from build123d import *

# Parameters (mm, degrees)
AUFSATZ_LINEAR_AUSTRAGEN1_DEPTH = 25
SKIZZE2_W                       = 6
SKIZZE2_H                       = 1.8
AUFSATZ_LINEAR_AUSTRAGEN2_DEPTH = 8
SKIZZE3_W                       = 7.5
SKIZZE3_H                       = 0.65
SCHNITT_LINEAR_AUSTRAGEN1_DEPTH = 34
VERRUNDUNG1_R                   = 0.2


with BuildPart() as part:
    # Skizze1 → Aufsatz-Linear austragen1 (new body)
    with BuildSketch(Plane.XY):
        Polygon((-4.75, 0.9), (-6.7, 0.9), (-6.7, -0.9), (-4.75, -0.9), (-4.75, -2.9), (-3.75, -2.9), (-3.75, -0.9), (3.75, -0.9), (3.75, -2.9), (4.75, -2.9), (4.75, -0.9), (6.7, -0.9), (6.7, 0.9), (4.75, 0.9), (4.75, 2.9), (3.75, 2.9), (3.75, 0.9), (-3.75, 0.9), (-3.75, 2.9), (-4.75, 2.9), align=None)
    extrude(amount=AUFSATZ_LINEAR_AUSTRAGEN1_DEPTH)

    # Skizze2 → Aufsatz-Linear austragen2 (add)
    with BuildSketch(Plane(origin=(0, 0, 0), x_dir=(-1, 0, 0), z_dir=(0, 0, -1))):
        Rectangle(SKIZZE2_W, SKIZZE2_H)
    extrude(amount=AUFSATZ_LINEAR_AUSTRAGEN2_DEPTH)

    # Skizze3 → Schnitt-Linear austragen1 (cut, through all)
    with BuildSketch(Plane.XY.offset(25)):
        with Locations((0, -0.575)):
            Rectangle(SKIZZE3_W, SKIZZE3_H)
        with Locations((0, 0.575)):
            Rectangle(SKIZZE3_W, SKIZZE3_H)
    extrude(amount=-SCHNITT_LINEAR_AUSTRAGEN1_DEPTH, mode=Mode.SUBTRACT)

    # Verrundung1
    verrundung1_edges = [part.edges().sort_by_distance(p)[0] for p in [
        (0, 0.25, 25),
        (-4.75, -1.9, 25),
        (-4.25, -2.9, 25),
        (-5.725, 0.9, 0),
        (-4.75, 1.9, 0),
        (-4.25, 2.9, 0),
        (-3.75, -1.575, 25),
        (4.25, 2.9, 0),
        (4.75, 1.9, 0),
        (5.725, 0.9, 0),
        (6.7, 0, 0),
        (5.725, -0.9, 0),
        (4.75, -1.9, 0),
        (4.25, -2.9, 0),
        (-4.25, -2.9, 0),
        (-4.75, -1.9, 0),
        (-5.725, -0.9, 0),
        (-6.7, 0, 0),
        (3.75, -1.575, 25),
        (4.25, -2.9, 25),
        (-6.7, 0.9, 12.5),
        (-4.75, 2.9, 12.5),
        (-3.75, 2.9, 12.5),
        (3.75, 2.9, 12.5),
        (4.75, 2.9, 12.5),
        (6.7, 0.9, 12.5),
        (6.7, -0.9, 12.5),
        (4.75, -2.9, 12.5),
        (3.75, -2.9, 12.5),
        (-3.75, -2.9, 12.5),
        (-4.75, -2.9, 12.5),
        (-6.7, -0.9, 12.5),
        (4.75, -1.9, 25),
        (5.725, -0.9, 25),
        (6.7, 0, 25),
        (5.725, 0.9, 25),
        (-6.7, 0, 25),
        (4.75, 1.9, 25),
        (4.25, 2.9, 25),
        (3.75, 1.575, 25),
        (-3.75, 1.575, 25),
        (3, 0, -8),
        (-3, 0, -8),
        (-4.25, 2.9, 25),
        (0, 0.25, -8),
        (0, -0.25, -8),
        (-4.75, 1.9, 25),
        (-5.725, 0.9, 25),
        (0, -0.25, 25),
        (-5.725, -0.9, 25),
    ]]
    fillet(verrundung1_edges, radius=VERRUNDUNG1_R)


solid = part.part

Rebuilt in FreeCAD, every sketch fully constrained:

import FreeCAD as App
import Part
import Sketcher

V = App.Vector


def edges_at(feature, points):
    """Names of the edges that pass closest to the given points."""
    edges = feature.Shape.Edges
    near = lambda p: min(range(len(edges)), key=lambda i: edges[i].distToShape(Part.Vertex(*p))[0])
    return sorted({f"Edge{near(p) + 1}" for p in points})


def add_polygon(sketch, points):
    """Adds a closed chain of lines whose ends are joined by coincident constraints."""
    first, n = sketch.GeometryCount, len(points)
    for a, b in zip(points, points[1:] + points[:1]):
        sketch.addGeometry(Part.LineSegment(App.Vector(*a, 0), App.Vector(*b, 0)), False)
    for i in range(n):
        sketch.addConstraint(Sketcher.Constraint("Coincident", first + i, 2, first + (i + 1) % n, 1))

doc = App.newDocument("Part")
body = doc.addObject("PartDesign::Body", "Body")

# Sketch on XY plane
sketch1 = doc.addObject("Sketcher::SketchObject", "Sketch")
body.addObject(sketch1)
sketch1.AttachmentSupport = (doc.XY_Plane, [""])
sketch1.MapMode = "FlatFace"
add_polygon(sketch1, [(-4.75, 0.9), (-6.7, 0.9), (-6.7, -0.9), (-4.75, -0.9), (-4.75, -2.9), (-3.75, -2.9), (-3.75, -0.9), (3.75, -0.9), (3.75, -2.9), (4.75, -2.9), (4.75, -0.9), (6.7, -0.9), (6.7, 0.9), (4.75, 0.9), (4.75, 2.9), (3.75, 2.9), (3.75, 0.9), (-3.75, 0.9), (-3.75, 2.9), (-4.75, 2.9)])  # lines 0-19
sketch1.addConstraint([
    Sketcher.Constraint("Horizontal", 0),
    Sketcher.Constraint("Vertical", 1),
    Sketcher.Constraint("Horizontal", 2),
    Sketcher.Constraint("Vertical", 3),
    Sketcher.Constraint("Horizontal", 4),
    Sketcher.Constraint("Vertical", 5),
    Sketcher.Constraint("Horizontal", 6),
    Sketcher.Constraint("Vertical", 7),
    Sketcher.Constraint("Horizontal", 8),
    Sketcher.Constraint("Vertical", 9),
    Sketcher.Constraint("Horizontal", 10),
    Sketcher.Constraint("Vertical", 11),
    Sketcher.Constraint("Horizontal", 12),
    Sketcher.Constraint("Vertical", 13),
    Sketcher.Constraint("Horizontal", 14),
    Sketcher.Constraint("Vertical", 15),
    Sketcher.Constraint("Horizontal", 16),
    Sketcher.Constraint("Vertical", 17),
    Sketcher.Constraint("Horizontal", 18),
    Sketcher.Constraint("Vertical", 19),
    Sketcher.Constraint("Symmetric", 0, 2, 10, 2, -1, 1),
    Sketcher.Constraint("Symmetric", 2, 2, 12, 2, -1, 1),
    Sketcher.Constraint("Symmetric", 4, 2, 14, 2, -1, 1),
    Sketcher.Constraint("Symmetric", 6, 2, 16, 2, -1, 1),
    Sketcher.Constraint("Symmetric", 8, 2, 18, 2, -1, 1),
    Sketcher.Constraint("Symmetric", 4, 2, 7, 2, -2),
    Sketcher.Constraint("Symmetric", 2, 2, 9, 2, -2),
    Sketcher.Constraint("Horizontal", 2, 2, 5, 2),
    Sketcher.Constraint("DistanceX", 4, 1, 4, 2, 1.0),
    Sketcher.Constraint("DistanceY", 3, 2, 3, 1, 2.0),
    Sketcher.Constraint("DistanceX", 6, 1, 6, 2, 7.5),
    Sketcher.Constraint("DistanceY", 1, 2, 1, 1, 1.8),
    Sketcher.Constraint("DistanceX", 0, 2, 0, 1, 1.95),
])
pad1 = doc.addObject("PartDesign::Pad", "Pad")
body.addObject(pad1)
pad1.Profile = sketch1
pad1.Length = 25

# Sketch on XY plane
sketch2 = doc.addObject("Sketcher::SketchObject", "Sketch001")
body.addObject(sketch2)
sketch2.AttachmentSupport = (doc.XY_Plane, [""])
sketch2.MapMode = "FlatFace"
add_polygon(sketch2, [(3, 0.9), (3, -0.9), (-3, -0.9), (-3, 0.9)])  # lines 0-3
sketch2.addConstraint([
    Sketcher.Constraint("Vertical", 0),
    Sketcher.Constraint("Horizontal", 1),
    Sketcher.Constraint("Vertical", 2),
    Sketcher.Constraint("Horizontal", 3),
    Sketcher.Constraint("Symmetric", 0, 2, 2, 2, -1, 1),
    Sketcher.Constraint("DistanceX", 1, 2, 1, 1, 6.0),
    Sketcher.Constraint("DistanceY", 0, 2, 0, 1, 1.8),
])
pad2 = doc.addObject("PartDesign::Pad", "Pad001")
body.addObject(pad2)
pad2.Profile = sketch2
pad2.Length = 8
pad2.Reversed = True

# Sketch on XY plane
sketch3 = doc.addObject("Sketcher::SketchObject", "Sketch002")
body.addObject(sketch3)
sketch3.AttachmentSupport = (doc.XY_Plane, [""])
sketch3.MapMode = "FlatFace"
sketch3.AttachmentOffset = App.Placement(V(0, 0, 25), App.Rotation())
add_polygon(sketch3, [(-3.75, -0.25), (-3.75, -0.9), (3.75, -0.9), (3.75, -0.25)])  # lines 0-3
add_polygon(sketch3, [(-3.75, 0.9), (-3.75, 0.25), (3.75, 0.25), (3.75, 0.9)])  # lines 4-7
sketch3.addConstraint([
    Sketcher.Constraint("Vertical", 0),
    Sketcher.Constraint("Horizontal", 1),
    Sketcher.Constraint("Vertical", 2),
    Sketcher.Constraint("Horizontal", 3),
    Sketcher.Constraint("Vertical", 4),
    Sketcher.Constraint("Horizontal", 5),
    Sketcher.Constraint("Vertical", 6),
    Sketcher.Constraint("Horizontal", 7),
    Sketcher.Constraint("Symmetric", 2, 2, 4, 2, -1, 1),
    Sketcher.Constraint("Symmetric", 0, 2, 6, 2, -1, 1),
    Sketcher.Constraint("Vertical", 3, 2, 4, 2),
    Sketcher.Constraint("DistanceX", 1, 1, 1, 2, 7.5),
    Sketcher.Constraint("DistanceY", 0, 2, 0, 1, 0.65),
    Sketcher.Constraint("DistanceY", 0, 2, -1, 1, 0.9),
])
pocket1 = doc.addObject("PartDesign::Pocket", "Pocket")
body.addObject(pocket1)
pocket1.Profile = sketch3
pocket1.Type = "ThroughAll"
doc.recompute()

fillet = doc.addObject("PartDesign::Fillet", "Fillet")
body.addObject(fillet)
fillet.Base = (pocket1, edges_at(pocket1, [
    (0, 0.25, 25),
    (-4.75, -1.9, 25),
    (-4.25, -2.9, 25),
    (-5.725, 0.9, 0),
    (-4.75, 1.9, 0),
    (-4.25, 2.9, 0),
    (-3.75, -1.575, 25),
    (4.25, 2.9, 0),
    (4.75, 1.9, 0),
    (5.725, 0.9, 0),
    (6.7, 0, 0),
    (5.725, -0.9, 0),
    (4.75, -1.9, 0),
    (4.25, -2.9, 0),
    (-4.25, -2.9, 0),
    (-4.75, -1.9, 0),
    (-5.725, -0.9, 0),
    (-6.7, 0, 0),
    (3.75, -1.575, 25),
    (4.25, -2.9, 25),
    (-6.7, 0.9, 12.5),
    (-4.75, 2.9, 12.5),
    (-3.75, 2.9, 12.5),
    (3.75, 2.9, 12.5),
    (4.75, 2.9, 12.5),
    (6.7, 0.9, 12.5),
    (6.7, -0.9, 12.5),
    (4.75, -2.9, 12.5),
    (3.75, -2.9, 12.5),
    (-3.75, -2.9, 12.5),
    (-4.75, -2.9, 12.5),
    (-6.7, -0.9, 12.5),
    (4.75, -1.9, 25),
    (5.725, -0.9, 25),
    (6.7, 0, 25),
    (5.725, 0.9, 25),
    (-6.7, 0, 25),
    (4.75, 1.9, 25),
    (4.25, 2.9, 25),
    (3.75, 1.575, 25),
    (-3.75, 1.575, 25),
    (3, 0, -8),
    (-3, 0, -8),
    (-4.25, 2.9, 25),
    (0, 0.25, -8),
    (0, -0.25, -8),
    (-4.75, 1.9, 25),
    (-5.725, 0.9, 25),
    (0, -0.25, 25),
    (-5.725, -0.9, 25),
]))
fillet.Radius = 0.2

doc.recompute()
